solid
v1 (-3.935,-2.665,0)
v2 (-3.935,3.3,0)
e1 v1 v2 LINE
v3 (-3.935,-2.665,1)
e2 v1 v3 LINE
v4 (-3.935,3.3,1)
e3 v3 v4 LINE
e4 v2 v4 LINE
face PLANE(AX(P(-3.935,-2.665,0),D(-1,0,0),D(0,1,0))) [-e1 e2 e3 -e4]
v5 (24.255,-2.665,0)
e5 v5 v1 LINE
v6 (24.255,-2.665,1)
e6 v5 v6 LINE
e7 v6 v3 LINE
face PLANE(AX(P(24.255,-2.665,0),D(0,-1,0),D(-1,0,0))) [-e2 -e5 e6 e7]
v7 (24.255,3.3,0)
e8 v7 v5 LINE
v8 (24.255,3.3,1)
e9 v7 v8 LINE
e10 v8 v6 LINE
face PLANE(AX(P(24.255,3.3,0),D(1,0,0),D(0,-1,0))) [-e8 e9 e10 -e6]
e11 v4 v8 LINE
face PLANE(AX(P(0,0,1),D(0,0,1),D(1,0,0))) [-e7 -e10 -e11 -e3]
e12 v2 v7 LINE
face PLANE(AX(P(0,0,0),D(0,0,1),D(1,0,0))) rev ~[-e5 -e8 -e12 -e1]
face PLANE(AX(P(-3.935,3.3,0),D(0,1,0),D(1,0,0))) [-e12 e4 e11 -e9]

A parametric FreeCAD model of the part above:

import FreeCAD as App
import Part
import Sketcher

V = App.Vector
Q = App.Units.Quantity

doc = App.newDocument("Part")
body = doc.addObject("PartDesign::Body", "Body")

# Sketch on XY plane
sketch1 = doc.addObject("Sketcher::SketchObject", "Sketch")
body.addObject(sketch1)
sketch1.AttachmentSupport = (doc.XY_Plane, [""])
sketch1.MapMode = "FlatFace"
sketch1.addGeometry([
    Part.LineSegment(V(-4, 3, 0), V(-4, -3, 0)),
    Part.LineSegment(V(-4, -3, 0), V(24, -3, 0)),
    Part.LineSegment(V(24, -3, 0), V(24, 3, 0)),
    Part.LineSegment(V(24, 3, 0), V(-4, 3, 0)),
], False)
sketch1.addConstraint([
    Sketcher.Constraint("Coincident", 0, 2, 1, 1),
    Sketcher.Constraint("Coincident", 1, 2, 2, 1),
    Sketcher.Constraint("Coincident", 2, 2, 3, 1),
    Sketcher.Constraint("Coincident", 3, 2, 0, 1),
    Sketcher.Constraint("Vertical", 0),
    Sketcher.Constraint("Horizontal", 1),
    Sketcher.Constraint("Vertical", 2),
    Sketcher.Constraint("Horizontal", 3),
    Sketcher.Constraint("DistanceX", 1, 1, 1, 2, Q("28.19 mm")),
    Sketcher.Constraint("DistanceY", -1, 1, 2, 2, Q("3.3 mm")),
    Sketcher.Constraint("DistanceY", 0, 2, 0, 1, Q("5.965 mm")),
    Sketcher.Constraint("DistanceX", 0, 2, -1, 1, Q("3.935 mm")),
])
pad1 = doc.addObject("PartDesign::Pad", "Pad")
body.addObject(pad1)
pad1.Profile = sketch1
pad1.Length = 1

doc.recompute()
